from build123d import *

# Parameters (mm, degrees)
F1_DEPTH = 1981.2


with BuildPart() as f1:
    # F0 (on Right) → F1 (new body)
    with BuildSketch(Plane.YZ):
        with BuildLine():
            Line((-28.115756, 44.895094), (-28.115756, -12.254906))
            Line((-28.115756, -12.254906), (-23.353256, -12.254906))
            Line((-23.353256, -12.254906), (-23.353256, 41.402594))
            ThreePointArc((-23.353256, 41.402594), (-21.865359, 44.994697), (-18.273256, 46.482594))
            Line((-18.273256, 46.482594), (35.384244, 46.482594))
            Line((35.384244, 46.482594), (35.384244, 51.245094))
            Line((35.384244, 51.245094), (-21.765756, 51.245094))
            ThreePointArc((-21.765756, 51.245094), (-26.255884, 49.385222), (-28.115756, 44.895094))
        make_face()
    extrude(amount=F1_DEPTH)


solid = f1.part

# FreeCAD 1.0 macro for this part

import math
import FreeCAD as App
import Part
import Sketcher

V = App.Vector
Q = App.Units.Quantity

doc = App.newDocument("Part")
body = doc.addObject("PartDesign::Body", "Body")

sketch1 = doc.addObject("Sketcher::SketchObject", "Sketch")
body.addObject(sketch1)
sketch1.AttachmentSupport = (doc.YZ_Plane, [""])
sketch1.MapMode = "FlatFace"
sketch1.addGeometry(Part.LineSegment(V(-28.115756, 44.895094, 0), V(-28.115756, -12.254906, 0)), False)
sketch1.addGeometry(Part.LineSegment(V(-28.115756, -12.254906, 0), V(-23.353256, -12.254906, 0)), False)
sketch1.addGeometry(Part.LineSegment(V(-23.353256, -12.254906, 0), V(-23.353256, 41.402594, 0)), False)
sketch1.addGeometry(Part.ArcOfCircle(Part.Circle(V(-18.273258, 41.402596, 0), V(0, 0, 1), 5.079998), math.radians(89.999979), math.radians(180.000021)), False)
sketch1.addGeometry(Part.LineSegment(V(-18.273256, 46.482594, 0), V(35.384244, 46.482594, 0)), False)
sketch1.addGeometry(Part.LineSegment(V(35.384244, 46.482594, 0), V(35.384244, 51.245094, 0)), False)
sketch1.addGeometry(Part.LineSegment(V(35.384244, 51.245094, 0), V(-21.765756, 51.245094, 0)), False)
sketch1.addGeometry(Part.ArcOfCircle(Part.Circle(V(-21.765756, 44.895094, 0), V(0, 0, 1), 6.35), math.radians(90.000002), math.radians(179.999998)), False)
sketch1.addConstraint(Sketcher.Constraint("Coincident", 0, 2, 1, 1))
sketch1.addConstraint(Sketcher.Constraint("Coincident", 1, 2, 2, 1))
sketch1.addConstraint(Sketcher.Constraint("Tangent", 2, 2, 3, 2))
sketch1.addConstraint(Sketcher.Constraint("Tangent", 3, 1, 4, 1))
sketch1.addConstraint(Sketcher.Constraint("Coincident", 4, 2, 5, 1))
sketch1.addConstraint(Sketcher.Constraint("Coincident", 5, 2, 6, 1))
sketch1.addConstraint(Sketcher.Constraint("Tangent", 6, 2, 7, 1))
sketch1.addConstraint(Sketcher.Constraint("Tangent", 7, 2, 0, 1))
sketch1.addConstraint(Sketcher.Constraint("Vertical", 0))
sketch1.addConstraint(Sketcher.Constraint("Horizontal", 1))
sketch1.addConstraint(Sketcher.Constraint("Vertical", 2))
sketch1.addConstraint(Sketcher.Constraint("Horizontal", 4))
sketch1.addConstraint(Sketcher.Constraint("Vertical", 5))
sketch1.addConstraint(Sketcher.Constraint("Horizontal", 6))
sketch1.addConstraint(Sketcher.Constraint("Equal", 6, 0))
sketch1.addConstraint(Sketcher.Constraint("Equal", 4, 2))
sketch1.addConstraint(Sketcher.Constraint("Radius", 3, Q("0.1999999 in")))
sketch1.addConstraint(Sketcher.Constraint("Radius", 7, Q("0.25 in")))
sketch1.addConstraint(Sketcher.Constraint("DistanceX", 6, 2, 6, 1, Q("2.25 in")))
sketch1.addConstraint(Sketcher.Constraint("DistanceX", 1, 1, 1, 2, Q("0.1875 in")))
sketch1.addConstraint(Sketcher.Constraint("DistanceX", 3, 3, -1, 1, Q("18.273258 mm")))
sketch1.addConstraint(Sketcher.Constraint("DistanceY", -1, 1, 3, 3, Q("41.402596 mm")))
pad1 = doc.addObject("PartDesign::Pad", "Pad")
body.addObject(pad1)
pad1.Profile = sketch1
pad1.Length = Q("78 in")

doc.recompute()
